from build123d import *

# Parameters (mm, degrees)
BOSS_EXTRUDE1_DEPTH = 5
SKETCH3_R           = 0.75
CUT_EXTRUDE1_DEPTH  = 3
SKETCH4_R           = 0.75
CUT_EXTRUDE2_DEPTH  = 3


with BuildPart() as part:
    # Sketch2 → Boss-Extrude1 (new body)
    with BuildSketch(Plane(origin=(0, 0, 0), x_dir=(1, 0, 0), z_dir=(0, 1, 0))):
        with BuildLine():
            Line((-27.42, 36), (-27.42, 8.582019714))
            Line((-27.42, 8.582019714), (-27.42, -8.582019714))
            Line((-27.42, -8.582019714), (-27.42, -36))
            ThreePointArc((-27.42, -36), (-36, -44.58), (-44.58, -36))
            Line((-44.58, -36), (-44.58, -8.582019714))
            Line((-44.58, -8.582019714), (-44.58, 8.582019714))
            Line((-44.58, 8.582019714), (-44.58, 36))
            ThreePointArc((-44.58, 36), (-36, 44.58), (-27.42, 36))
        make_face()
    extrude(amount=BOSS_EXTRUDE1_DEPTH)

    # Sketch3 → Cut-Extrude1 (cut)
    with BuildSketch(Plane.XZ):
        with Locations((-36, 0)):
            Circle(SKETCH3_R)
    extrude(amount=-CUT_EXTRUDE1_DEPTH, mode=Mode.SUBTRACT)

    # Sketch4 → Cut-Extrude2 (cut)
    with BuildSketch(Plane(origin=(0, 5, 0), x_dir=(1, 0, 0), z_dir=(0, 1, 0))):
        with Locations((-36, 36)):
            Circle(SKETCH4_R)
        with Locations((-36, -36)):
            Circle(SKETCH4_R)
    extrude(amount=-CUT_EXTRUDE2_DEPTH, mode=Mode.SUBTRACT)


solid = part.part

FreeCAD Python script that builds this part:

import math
import FreeCAD as App
import Part
import Sketcher
from FreeCAD import Vector
Q = App.Units.Quantity

doc = App.newDocument("Part")
body = doc.addObject("PartDesign::Body", "Body")

sketch1 = body.newObject("Sketcher::SketchObject", "Sketch")
sketch1.AttachmentSupport = (doc.getObject("XZ_Plane"), [""])
sketch1.MapMode = "FlatFace"
sketch1.addGeometry(Part.LineSegment(Vector(-27, 36, 0), Vector(-27, -36, 0)), False)
sketch1.addGeometry(Part.ArcOfCircle(Part.Circle(Vector(-36, -36, 0), Vector(0, 0, 1), 9), math.radians(180), math.radians(360)), False)
sketch1.addGeometry(Part.LineSegment(Vector(-45, -36, 0), Vector(-45, 36, 0)), False)
sketch1.addGeometry(Part.ArcOfCircle(Part.Circle(Vector(-36, 36, 0), Vector(0, 0, 1), 9), math.radians(0), math.radians(180)), False)
sketch1.addConstraint(Sketcher.Constraint("Tangent", 0, 2, 1, 2))
sketch1.addConstraint(Sketcher.Constraint("Tangent", 1, 1, 2, 1))
sketch1.addConstraint(Sketcher.Constraint("Tangent", 2, 2, 3, 2))
sketch1.addConstraint(Sketcher.Constraint("Tangent", 3, 1, 0, 1))
sketch1.addConstraint(Sketcher.Constraint("Vertical", 0))
sketch1.addConstraint(Sketcher.Constraint("Vertical", 2))
sketch1.addConstraint(Sketcher.Constraint("DistanceY", 0, 2, 0, 1, Q("72 mm")))
sketch1.addConstraint(Sketcher.Constraint("Radius", 1, Q("8.58 mm")))
sketch1.addConstraint(Sketcher.Constraint("DistanceX", 1, 3, -1, 1, Q("36 mm")))
sketch1.addConstraint(Sketcher.Constraint("DistanceY", 1, 3, -1, 1, Q("36 mm")))
pad1 = body.newObject("PartDesign::Pad", "Pad")
pad1.Profile = sketch1
pad1.Length = 5
pad1.Reversed = True

sketch2 = body.newObject("Sketcher::SketchObject", "Sketch001")
sketch2.AttachmentSupport = (doc.getObject("XZ_Plane"), [""])
sketch2.MapMode = "FlatFace"
sketch2.addGeometry(Part.Circle(Vector(-36, 0, 0), Vector(0, 0, 1), 0.8), False)
sketch2.addConstraint(Sketcher.Constraint("PointOnObject", 0, 3, -1))
sketch2.addConstraint(Sketcher.Constraint("Diameter", 0, Q("1.5 mm")))
sketch2.addConstraint(Sketcher.Constraint("DistanceX", 0, 3, -1, 1, Q("36 mm")))
pocket1 = body.newObject("PartDesign::Pocket", "Pocket")
pocket1.Profile = sketch2
pocket1.Length = 3

sketch3 = body.newObject("Sketcher::SketchObject", "Sketch002")
sketch3.AttachmentSupport = (doc.getObject("XZ_Plane"), [""])
sketch3.MapMode = "FlatFace"
sketch3.AttachmentOffset = App.Placement(Vector(0, 0, -5), App.Rotation())
sketch3.addGeometry(Part.Circle(Vector(-36, -36, 0), Vector(0, 0, 1), 0.8), False)
sketch3.addGeometry(Part.Circle(Vector(-36, 36, 0), Vector(0, 0, 1), 0.8), False)
sketch3.addConstraint(Sketcher.Constraint("Equal", 0, 1))
sketch3.addConstraint(Sketcher.Constraint("Symmetric", 0, 3, 1, 3, -1))
sketch3.addConstraint(Sketcher.Constraint("Diameter", 0, Q("1.5 mm")))
sketch3.addConstraint(Sketcher.Constraint("DistanceX", 0, 3, -1, 1, Q("36 mm")))
sketch3.addConstraint(Sketcher.Constraint("DistanceY", 0, 3, -1, 1, Q("36 mm")))
pocket2 = body.newObject("PartDesign::Pocket", "Pocket001")
pocket2.Profile = sketch3
pocket2.Length = 3
pocket2.Reversed = True

doc.recompute()
